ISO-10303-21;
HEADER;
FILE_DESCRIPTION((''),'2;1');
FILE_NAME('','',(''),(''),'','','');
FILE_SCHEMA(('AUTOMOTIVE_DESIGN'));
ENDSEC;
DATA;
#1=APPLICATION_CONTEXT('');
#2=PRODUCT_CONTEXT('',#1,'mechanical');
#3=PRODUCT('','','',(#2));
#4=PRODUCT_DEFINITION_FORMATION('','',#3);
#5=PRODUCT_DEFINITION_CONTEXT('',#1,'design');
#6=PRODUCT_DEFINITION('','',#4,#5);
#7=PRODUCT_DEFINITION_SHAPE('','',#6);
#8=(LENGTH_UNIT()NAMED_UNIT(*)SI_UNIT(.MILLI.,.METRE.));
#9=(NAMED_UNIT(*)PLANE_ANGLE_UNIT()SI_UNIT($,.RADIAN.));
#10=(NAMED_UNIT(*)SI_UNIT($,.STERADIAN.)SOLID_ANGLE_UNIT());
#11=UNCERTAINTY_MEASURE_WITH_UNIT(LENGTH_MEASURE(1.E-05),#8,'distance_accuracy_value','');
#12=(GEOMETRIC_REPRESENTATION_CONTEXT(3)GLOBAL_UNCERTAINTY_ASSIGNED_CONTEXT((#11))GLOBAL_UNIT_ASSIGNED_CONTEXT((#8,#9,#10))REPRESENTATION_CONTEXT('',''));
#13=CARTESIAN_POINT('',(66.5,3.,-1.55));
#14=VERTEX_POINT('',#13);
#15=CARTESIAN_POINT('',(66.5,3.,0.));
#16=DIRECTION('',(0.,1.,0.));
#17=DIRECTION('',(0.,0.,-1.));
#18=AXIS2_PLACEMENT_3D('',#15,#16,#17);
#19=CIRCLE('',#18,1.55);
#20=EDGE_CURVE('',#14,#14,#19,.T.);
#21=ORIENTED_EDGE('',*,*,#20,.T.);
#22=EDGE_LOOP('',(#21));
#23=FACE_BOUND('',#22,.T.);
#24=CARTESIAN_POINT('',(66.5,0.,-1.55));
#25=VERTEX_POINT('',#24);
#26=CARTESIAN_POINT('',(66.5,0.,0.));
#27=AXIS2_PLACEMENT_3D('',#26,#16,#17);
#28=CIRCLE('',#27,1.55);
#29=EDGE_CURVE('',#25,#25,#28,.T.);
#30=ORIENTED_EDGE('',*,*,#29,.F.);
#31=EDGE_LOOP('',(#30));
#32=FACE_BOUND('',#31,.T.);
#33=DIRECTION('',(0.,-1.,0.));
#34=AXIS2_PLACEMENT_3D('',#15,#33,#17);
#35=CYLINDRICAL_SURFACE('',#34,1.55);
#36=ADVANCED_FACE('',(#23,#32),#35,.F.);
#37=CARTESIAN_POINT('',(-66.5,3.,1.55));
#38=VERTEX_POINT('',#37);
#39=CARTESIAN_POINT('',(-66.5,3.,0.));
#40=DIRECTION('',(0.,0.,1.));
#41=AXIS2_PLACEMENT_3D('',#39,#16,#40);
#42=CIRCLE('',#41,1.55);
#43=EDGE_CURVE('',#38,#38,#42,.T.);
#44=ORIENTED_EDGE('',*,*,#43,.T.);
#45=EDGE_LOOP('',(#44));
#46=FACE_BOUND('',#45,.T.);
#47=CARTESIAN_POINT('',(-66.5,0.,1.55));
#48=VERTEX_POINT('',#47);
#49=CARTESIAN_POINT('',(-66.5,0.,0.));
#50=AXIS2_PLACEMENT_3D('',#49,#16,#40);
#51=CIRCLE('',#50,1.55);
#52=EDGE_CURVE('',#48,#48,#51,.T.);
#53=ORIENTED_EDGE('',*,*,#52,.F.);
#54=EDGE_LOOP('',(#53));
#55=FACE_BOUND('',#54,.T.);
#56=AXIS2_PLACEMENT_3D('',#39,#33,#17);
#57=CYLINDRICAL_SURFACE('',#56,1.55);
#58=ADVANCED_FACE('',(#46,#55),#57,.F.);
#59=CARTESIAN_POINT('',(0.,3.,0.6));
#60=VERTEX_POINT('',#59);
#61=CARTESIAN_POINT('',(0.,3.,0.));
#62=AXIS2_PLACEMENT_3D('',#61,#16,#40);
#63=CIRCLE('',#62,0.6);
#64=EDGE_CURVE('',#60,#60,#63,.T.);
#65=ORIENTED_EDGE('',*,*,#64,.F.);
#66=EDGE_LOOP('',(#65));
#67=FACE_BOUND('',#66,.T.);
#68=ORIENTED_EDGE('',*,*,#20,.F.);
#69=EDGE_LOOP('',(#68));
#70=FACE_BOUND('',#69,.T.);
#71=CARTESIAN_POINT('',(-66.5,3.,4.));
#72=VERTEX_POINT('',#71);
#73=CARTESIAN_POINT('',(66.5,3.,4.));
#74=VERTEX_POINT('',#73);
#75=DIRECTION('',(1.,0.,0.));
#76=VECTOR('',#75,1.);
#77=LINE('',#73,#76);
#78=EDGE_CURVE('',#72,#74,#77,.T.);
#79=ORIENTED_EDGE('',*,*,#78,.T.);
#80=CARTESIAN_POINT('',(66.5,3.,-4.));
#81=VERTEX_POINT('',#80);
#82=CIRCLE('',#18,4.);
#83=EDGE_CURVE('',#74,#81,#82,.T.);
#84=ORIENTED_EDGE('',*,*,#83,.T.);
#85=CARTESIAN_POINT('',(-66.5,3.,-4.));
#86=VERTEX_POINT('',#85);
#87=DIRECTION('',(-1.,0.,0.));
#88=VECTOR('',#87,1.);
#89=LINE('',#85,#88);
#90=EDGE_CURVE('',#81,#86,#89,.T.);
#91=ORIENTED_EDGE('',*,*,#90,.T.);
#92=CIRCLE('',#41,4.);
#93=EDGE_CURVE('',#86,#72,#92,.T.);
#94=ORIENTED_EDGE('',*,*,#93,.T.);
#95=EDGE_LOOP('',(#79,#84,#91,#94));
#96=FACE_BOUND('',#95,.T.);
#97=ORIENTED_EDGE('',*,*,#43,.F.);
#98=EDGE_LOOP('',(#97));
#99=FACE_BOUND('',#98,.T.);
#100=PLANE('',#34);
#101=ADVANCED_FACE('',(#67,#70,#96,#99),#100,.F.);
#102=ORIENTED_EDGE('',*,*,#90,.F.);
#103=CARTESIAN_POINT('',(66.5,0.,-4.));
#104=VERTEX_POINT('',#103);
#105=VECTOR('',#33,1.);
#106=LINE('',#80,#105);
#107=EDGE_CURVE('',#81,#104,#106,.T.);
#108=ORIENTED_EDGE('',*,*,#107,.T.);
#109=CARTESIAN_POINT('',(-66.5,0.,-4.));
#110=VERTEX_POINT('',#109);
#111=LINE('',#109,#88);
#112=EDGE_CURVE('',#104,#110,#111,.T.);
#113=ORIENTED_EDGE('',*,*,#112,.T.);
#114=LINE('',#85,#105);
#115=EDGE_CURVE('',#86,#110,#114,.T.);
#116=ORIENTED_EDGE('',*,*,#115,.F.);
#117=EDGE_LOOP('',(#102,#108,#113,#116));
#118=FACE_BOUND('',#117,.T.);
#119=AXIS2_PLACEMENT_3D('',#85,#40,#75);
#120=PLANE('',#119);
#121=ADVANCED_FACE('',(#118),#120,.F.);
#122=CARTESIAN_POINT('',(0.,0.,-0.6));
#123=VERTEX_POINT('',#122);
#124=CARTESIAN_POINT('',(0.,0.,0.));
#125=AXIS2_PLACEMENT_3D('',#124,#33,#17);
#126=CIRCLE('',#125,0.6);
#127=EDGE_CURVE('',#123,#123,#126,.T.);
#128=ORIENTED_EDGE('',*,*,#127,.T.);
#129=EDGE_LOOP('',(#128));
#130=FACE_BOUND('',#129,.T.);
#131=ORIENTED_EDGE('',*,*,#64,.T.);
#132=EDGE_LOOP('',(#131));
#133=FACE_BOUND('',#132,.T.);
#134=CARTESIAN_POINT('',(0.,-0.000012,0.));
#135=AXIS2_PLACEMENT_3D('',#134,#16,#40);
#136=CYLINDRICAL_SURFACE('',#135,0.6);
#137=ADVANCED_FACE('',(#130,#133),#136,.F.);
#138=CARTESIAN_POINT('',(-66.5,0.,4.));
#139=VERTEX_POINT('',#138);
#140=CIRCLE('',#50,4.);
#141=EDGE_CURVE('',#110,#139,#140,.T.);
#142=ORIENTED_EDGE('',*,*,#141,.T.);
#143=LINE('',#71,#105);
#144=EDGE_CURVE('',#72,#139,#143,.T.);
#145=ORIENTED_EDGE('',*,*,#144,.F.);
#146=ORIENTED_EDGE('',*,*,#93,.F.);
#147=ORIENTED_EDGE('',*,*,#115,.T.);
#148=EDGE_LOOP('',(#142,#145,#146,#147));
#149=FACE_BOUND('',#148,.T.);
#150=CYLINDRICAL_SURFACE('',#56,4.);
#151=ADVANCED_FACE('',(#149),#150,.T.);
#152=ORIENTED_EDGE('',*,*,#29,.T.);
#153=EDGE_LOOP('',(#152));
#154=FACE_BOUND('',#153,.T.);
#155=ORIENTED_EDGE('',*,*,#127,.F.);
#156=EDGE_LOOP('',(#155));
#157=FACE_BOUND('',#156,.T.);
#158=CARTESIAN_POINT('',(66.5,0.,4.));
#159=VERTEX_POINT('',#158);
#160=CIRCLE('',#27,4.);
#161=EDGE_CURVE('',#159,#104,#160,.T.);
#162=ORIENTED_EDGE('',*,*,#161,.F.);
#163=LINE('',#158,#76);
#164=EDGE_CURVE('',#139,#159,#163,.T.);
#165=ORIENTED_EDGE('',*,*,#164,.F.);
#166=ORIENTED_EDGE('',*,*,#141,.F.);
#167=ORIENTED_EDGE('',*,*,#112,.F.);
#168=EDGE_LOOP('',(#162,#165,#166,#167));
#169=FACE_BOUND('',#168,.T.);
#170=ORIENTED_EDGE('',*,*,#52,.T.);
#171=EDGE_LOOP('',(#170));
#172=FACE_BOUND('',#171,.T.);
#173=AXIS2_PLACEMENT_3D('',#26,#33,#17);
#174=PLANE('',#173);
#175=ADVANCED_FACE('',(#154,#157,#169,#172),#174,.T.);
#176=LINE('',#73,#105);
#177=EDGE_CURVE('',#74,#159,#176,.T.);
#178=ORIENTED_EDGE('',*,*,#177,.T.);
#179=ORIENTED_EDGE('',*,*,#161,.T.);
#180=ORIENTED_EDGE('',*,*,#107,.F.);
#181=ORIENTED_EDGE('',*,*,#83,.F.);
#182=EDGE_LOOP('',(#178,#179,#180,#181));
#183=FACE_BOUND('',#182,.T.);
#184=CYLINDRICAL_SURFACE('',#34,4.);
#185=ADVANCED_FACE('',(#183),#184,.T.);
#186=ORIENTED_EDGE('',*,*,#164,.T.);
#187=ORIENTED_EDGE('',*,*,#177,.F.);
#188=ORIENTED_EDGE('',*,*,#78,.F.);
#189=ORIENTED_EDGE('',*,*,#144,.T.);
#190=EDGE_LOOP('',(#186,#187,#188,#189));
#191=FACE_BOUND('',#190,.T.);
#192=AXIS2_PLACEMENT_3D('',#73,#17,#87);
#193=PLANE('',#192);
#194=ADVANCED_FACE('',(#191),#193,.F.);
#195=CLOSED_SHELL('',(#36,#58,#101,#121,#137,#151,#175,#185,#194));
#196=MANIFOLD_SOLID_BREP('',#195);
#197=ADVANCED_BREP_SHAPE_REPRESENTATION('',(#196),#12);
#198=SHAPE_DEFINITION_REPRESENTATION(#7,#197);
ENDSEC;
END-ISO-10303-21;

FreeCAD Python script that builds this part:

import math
import FreeCAD as App
import Part
import Sketcher
from FreeCAD import Vector
Q = App.Units.Quantity

doc = App.newDocument("Part")
body = doc.addObject("PartDesign::Body", "Body")

# Sketch on XZ plane
sketch1 = doc.addObject("Sketcher::SketchObject", "Sketch")
body.addObject(sketch1)
sketch1.AttachmentSupport = (doc.XZ_Plane, [""])
sketch1.MapMode = "FlatFace"
sketch1.addGeometry([
    Part.LineSegment(Vector(66.5, -4, 0), Vector(-66.5, -4, 0)),  # 0
    Part.ArcOfCircle(Part.Circle(Vector(-66.5, 0, 0), Vector(0, 0, 1), 4), math.radians(90), math.radians(270)),  # 1
    Part.LineSegment(Vector(-66.5, 4, 0), Vector(66.5, 4, 0)),  # 2
    Part.ArcOfCircle(Part.Circle(Vector(66.5, 0, 0), Vector(0, 0, 1), 4), math.radians(-90), math.radians(90)),  # 3
    Part.Circle(Vector(66.5, 0, 0), Vector(0, 0, 1), 1.6),  # 4
    Part.Circle(Vector(-66.5, 0, 0), Vector(0, 0, 1), 1.6),  # 5
], False)
sketch1.addConstraint([
    Sketcher.Constraint("Tangent", 0, 2, 1, 2),
    Sketcher.Constraint("Tangent", 1, 1, 2, 1),
    Sketcher.Constraint("Tangent", 2, 2, 3, 2),
    Sketcher.Constraint("Tangent", 3, 1, 0, 1),
    Sketcher.Constraint("Horizontal", 0),
    Sketcher.Constraint("Horizontal", 2),
    Sketcher.Constraint("Coincident", 4, 3, 3, 3),
    Sketcher.Constraint("Coincident", 5, 3, 1, 3),
    Sketcher.Constraint("Equal", 4, 5),
    Sketcher.Constraint("Symmetric", 1, 3, 3, 3, -1, 1),
    Sketcher.Constraint("Radius", 1, Q("4 mm")),
    Sketcher.Constraint("Diameter", 4, Q("3.1 mm")),
    Sketcher.Constraint("DistanceX", 0, 2, 0, 1, Q("133 mm")),
])
pad1 = doc.addObject("PartDesign::Pad", "Pad")
body.addObject(pad1)
pad1.Profile = sketch1
pad1.Length = 3
pad1.Reversed = True

# Sketch on XZ plane
sketch2 = doc.addObject("Sketcher::SketchObject", "Sketch001")
body.addObject(sketch2)
sketch2.AttachmentSupport = (doc.XZ_Plane, [""])
sketch2.MapMode = "FlatFace"
sketch2.addGeometry(Part.Circle(Vector(0, 0, 0), Vector(0, 0, 1), 0.6), False)
sketch2.addConstraint([
    Sketcher.Constraint("Coincident", 0, 3, -1, 1),
    Sketcher.Constraint("Diameter", 0, Q("1.2 mm")),
])
pocket1 = doc.addObject("PartDesign::Pocket", "Pocket")
body.addObject(pocket1)
pocket1.Profile = sketch2
pocket1.Type = "ThroughAll"
pocket1.Midplane = True

doc.recompute()
